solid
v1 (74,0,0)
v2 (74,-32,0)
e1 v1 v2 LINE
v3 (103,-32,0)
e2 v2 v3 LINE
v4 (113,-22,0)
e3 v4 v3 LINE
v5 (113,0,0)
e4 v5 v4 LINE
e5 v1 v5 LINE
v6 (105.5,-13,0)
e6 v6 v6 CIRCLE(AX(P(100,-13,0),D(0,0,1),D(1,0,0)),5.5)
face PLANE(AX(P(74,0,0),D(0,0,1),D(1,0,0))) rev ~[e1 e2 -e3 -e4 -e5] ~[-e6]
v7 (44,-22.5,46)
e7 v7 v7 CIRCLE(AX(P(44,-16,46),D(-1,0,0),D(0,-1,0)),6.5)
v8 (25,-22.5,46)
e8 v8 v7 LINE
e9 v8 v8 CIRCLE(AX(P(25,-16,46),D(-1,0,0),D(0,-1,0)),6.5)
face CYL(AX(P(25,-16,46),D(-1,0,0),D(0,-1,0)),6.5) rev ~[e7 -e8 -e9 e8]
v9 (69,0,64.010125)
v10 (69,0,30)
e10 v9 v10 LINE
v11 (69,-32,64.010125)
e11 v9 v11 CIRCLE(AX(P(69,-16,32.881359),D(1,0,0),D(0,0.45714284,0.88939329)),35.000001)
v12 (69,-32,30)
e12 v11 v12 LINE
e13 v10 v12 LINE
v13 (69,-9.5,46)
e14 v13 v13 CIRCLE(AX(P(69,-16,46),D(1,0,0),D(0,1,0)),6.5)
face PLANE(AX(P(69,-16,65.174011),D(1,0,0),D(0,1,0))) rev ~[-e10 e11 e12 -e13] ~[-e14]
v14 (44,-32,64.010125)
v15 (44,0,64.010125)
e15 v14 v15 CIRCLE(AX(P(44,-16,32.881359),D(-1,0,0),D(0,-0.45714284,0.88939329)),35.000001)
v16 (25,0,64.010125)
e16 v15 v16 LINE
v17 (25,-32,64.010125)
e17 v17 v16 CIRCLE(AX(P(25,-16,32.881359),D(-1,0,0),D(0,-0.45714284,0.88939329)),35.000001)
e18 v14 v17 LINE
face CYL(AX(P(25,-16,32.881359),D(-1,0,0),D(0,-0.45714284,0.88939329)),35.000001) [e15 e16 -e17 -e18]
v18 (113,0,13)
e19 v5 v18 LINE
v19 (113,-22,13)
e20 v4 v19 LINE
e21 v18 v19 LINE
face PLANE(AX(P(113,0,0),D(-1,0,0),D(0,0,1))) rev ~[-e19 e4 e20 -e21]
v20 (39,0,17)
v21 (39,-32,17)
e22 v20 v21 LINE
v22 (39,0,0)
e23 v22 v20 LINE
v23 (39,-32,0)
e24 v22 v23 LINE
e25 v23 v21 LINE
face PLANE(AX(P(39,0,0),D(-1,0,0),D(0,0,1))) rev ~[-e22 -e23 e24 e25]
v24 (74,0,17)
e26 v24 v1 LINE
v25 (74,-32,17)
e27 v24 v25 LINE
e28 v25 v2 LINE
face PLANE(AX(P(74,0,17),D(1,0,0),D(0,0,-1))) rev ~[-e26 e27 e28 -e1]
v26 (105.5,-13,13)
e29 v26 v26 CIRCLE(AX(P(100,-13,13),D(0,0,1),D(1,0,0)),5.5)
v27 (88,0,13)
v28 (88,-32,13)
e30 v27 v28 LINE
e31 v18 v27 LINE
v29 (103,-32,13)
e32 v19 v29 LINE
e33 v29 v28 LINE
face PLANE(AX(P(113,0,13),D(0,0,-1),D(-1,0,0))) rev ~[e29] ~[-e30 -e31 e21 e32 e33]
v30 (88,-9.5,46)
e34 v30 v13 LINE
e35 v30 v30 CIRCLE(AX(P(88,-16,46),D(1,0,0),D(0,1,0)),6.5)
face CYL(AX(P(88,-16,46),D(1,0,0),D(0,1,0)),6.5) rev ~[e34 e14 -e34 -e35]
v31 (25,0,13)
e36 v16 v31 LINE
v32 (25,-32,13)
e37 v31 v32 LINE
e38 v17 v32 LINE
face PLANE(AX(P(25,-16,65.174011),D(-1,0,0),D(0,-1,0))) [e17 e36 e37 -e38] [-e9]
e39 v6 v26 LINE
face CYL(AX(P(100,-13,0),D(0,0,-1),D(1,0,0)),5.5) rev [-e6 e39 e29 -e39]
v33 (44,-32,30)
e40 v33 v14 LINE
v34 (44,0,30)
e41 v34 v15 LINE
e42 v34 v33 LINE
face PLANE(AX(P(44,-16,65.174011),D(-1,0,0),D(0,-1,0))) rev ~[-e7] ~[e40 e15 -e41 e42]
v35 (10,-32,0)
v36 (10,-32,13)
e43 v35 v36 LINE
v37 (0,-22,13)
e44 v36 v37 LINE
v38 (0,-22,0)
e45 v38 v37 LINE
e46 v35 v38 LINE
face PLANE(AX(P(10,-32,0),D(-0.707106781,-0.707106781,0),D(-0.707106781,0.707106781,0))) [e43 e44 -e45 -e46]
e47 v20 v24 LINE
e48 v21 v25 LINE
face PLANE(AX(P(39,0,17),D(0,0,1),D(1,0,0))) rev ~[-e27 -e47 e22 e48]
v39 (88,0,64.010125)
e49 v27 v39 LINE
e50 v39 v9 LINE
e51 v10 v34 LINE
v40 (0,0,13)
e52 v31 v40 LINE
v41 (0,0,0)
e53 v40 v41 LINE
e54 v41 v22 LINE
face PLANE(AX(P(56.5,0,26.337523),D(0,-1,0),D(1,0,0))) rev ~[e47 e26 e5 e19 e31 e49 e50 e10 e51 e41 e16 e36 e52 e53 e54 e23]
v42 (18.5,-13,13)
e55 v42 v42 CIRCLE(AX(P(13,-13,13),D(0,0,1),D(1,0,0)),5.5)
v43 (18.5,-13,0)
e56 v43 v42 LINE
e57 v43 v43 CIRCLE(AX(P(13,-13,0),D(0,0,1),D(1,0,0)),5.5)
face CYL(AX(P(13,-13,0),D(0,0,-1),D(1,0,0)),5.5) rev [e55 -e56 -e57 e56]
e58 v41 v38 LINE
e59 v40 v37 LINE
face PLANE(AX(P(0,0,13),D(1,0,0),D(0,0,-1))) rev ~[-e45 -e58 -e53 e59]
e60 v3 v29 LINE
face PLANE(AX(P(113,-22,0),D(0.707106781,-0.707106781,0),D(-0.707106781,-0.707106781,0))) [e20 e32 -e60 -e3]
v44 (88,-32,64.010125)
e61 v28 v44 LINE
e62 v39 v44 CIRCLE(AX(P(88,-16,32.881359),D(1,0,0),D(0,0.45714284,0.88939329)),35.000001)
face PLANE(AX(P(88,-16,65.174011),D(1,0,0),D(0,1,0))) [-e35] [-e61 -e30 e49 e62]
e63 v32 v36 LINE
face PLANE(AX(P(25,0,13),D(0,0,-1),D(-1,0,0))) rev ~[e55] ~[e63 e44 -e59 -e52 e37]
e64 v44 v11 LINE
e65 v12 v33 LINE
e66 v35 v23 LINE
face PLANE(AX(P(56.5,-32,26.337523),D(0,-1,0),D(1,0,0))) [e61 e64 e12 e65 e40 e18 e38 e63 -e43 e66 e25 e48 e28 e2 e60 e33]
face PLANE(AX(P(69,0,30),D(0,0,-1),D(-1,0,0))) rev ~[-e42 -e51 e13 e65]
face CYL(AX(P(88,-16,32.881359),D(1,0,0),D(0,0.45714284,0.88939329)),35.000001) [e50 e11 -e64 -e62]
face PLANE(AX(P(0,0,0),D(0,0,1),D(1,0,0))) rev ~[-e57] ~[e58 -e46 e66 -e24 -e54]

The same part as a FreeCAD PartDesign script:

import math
import FreeCAD as App
import Part
import Sketcher

V = App.Vector


def add_polygon(sketch, points):
    """Adds a closed chain of lines whose ends are joined by coincident constraints."""
    first, n = sketch.GeometryCount, len(points)
    for a, b in zip(points, points[1:] + points[:1]):
        sketch.addGeometry(Part.LineSegment(App.Vector(*a, 0), App.Vector(*b, 0)), False)
    for i in range(n):
        sketch.addConstraint(Sketcher.Constraint("Coincident", first + i, 2, first + (i + 1) % n, 1))

doc = App.newDocument("Part")
params = doc.addObject("Spreadsheet::Sheet", "Params")
for row, (alias, value) in enumerate([
    ("sketch1_width", "39 mm"),
    ("sketch1_width2", "35 mm"),
    ("sketch1_width3", "25 mm"),
    ("sketch1_height", "13 mm"),
    ("sketch1_height2", "17 mm"),
    ("pad1_length", "32 mm"),
    ("sketch2_diameter", "13 mm"),
    ("pocket1_length", "19 mm"),
    ("sketch3_diameter", "13 mm"),
    ("sketch4_width", "10 mm"),
    ("sketch5_diameter", "11 mm"),
    ("sketch6_radius", "35.000001 mm"),
    ("sketch6_width", "32 mm"),
    ("pad2_length", "19 mm"),
    ("sketch7_radius", "35.000001 mm"),
    ("sketch7_width", "32 mm"),
    ("pad3_length", "19 mm"),
], start=1):
    params.set(f"A{row}", alias)
    params.set(f"B{row}", "=" + value)
    params.setAlias(f"B{row}", alias)

body = doc.addObject("PartDesign::Body", "Body")

# Sketch on XZ plane
sketch1 = doc.addObject("Sketcher::SketchObject", "Sketch")
body.addObject(sketch1)
sketch1.AttachmentSupport = (doc.XZ_Plane, [""])
sketch1.MapMode = "FlatFace"
add_polygon(sketch1, [(0, 13), (0, 0), (39, 0), (39, 17), (74, 17), (74, 0), (113, 0), (113, 13), (88, 13), (88, 64.010125), (69, 64.010125), (69, 30), (44, 30), (44, 64.010125), (25, 64.010125), (25, 13)])  # lines 0-15
sketch1.addConstraint([
    Sketcher.Constraint("Vertical", 0),
    Sketcher.Constraint("Horizontal", 1),
    Sketcher.Constraint("Vertical", 2),
    Sketcher.Constraint("Horizontal", 3),
    Sketcher.Constraint("Vertical", 4),
    Sketcher.Constraint("Horizontal", 5),
    Sketcher.Constraint("Vertical", 6),
    Sketcher.Constraint("Horizontal", 7),
    Sketcher.Constraint("Vertical", 8),
    Sketcher.Constraint("Horizontal", 9),
    Sketcher.Constraint("Vertical", 10),
    Sketcher.Constraint("Horizontal", 11),
    Sketcher.Constraint("Vertical", 12),
    Sketcher.Constraint("Horizontal", 13),
    Sketcher.Constraint("Vertical", 14),
    Sketcher.Constraint("Horizontal", 15),
    Sketcher.Constraint("Coincident", 0, 2, -1, 1),
    Sketcher.Constraint("PointOnObject", 4, 2, -1),
    Sketcher.Constraint("Horizontal", 9, 2, 12, 2),
    Sketcher.Constraint("Horizontal", 7, 2, 14, 2),
    Sketcher.Constraint("Equal", 1, 5),
    Sketcher.Constraint("Equal", 7, 11),
    Sketcher.Constraint("Equal", 9, 13),
    Sketcher.Constraint("Equal", 11, 15),
    Sketcher.Constraint("DistanceX", 1, 1, 1, 2, 39.0),
    Sketcher.Constraint("DistanceX", 3, 1, 3, 2, 35.0),
    Sketcher.Constraint("DistanceX", 7, 2, 7, 1, 25.0),
    Sketcher.Constraint("DistanceY", 0, 2, 0, 1, 13.0),
    Sketcher.Constraint("DistanceY", 2, 1, 2, 2, 17.0),
    Sketcher.Constraint("DistanceY", -1, 1, 10, 2, 30.0),
    Sketcher.Constraint("DistanceY", 8, 1, 8, 2, 51.010125),
])
sketch1.setExpression("Constraints[40]", "Params.sketch1_width")
sketch1.setExpression("Constraints[41]", "Params.sketch1_width2")
sketch1.setExpression("Constraints[42]", "Params.sketch1_width3")
sketch1.setExpression("Constraints[43]", "Params.sketch1_height")
sketch1.setExpression("Constraints[44]", "Params.sketch1_height2")
pad1 = doc.addObject("PartDesign::Pad", "Pad")
body.addObject(pad1)
pad1.Profile = sketch1
pad1.setExpression("Length", "Params.pad1_length")

# Sketch on YZ plane
sketch2 = doc.addObject("Sketcher::SketchObject", "Sketch001")
body.addObject(sketch2)
sketch2.AttachmentSupport = (doc.YZ_Plane, [""])
sketch2.MapMode = "FlatFace"
sketch2.AttachmentOffset = App.Placement(V(0, 0, 88), App.Rotation())
sketch2.addGeometry(Part.Circle(V(-16, 46, 0), V(0, 0, 1), 6.5), False)
sketch2.addConstraint([
    Sketcher.Constraint("Diameter", 0, 13.0),
    Sketcher.Constraint("DistanceX", 0, 3, -1, 1, 16.0),
    Sketcher.Constraint("DistanceY", -1, 1, 0, 3, 46.0),
])
sketch2.setExpression("Constraints[0]", "Params.sketch2_diameter")
pocket1 = doc.addObject("PartDesign::Pocket", "Pocket")
body.addObject(pocket1)
pocket1.Profile = sketch2
pocket1.setExpression("Length", "Params.pocket1_length")

# Sketch on YZ plane
sketch3 = doc.addObject("Sketcher::SketchObject", "Sketch002")
body.addObject(sketch3)
sketch3.AttachmentSupport = (doc.YZ_Plane, [""])
sketch3.MapMode = "FlatFace"
sketch3.AttachmentOffset = App.Placement(V(0, 0, 25), App.Rotation())
sketch3.addGeometry(Part.Circle(V(-16, 46, 0), V(0, 0, 1), 6.5), False)
sketch3.addConstraint([
    Sketcher.Constraint("Diameter", 0, 13.0),
    Sketcher.Constraint("DistanceX", 0, 3, -1, 1, 16.0),
    Sketcher.Constraint("DistanceY", -1, 1, 0, 3, 46.0),
])
sketch3.setExpression("Constraints[0]", "Params.sketch3_diameter")
pocket2 = doc.addObject("PartDesign::Pocket", "Pocket001")
body.addObject(pocket2)
pocket2.Profile = sketch3
pocket2.Type = "ThroughAll"
pocket2.Reversed = True

# Sketch on XY plane
sketch4 = doc.addObject("Sketcher::SketchObject", "Sketch003")
body.addObject(sketch4)
sketch4.AttachmentSupport = (doc.XY_Plane, [""])
sketch4.MapMode = "FlatFace"
add_polygon(sketch4, [(0, -22), (0, -32), (10, -32)])  # lines 0-2
add_polygon(sketch4, [(113, -22), (103, -32), (113, -32)])  # lines 3-5
sketch4.addConstraint([
    Sketcher.Constraint("Vertical", 0),
    Sketcher.Constraint("Horizontal", 1),
    Sketcher.Constraint("Horizontal", 4),
    Sketcher.Constraint("Vertical", 5),
    Sketcher.Constraint("PointOnObject", 0, 2, -2),
    Sketcher.Constraint("Perpendicular", 2, 3),
    Sketcher.Constraint("Horizontal", 1, 2, 3, 2),
    Sketcher.Constraint("Horizontal", 2, 2, 5, 2),
    Sketcher.Constraint("Equal", 1, 4),
    Sketcher.Constraint("DistanceX", 1, 1, 1, 2, 10.0),
    Sketcher.Constraint("DistanceY", 0, 2, -1, 1, 32.0),
    Sketcher.Constraint("DistanceX", -1, 1, 3, 2, 103.0),
])
sketch4.setExpression("Constraints[15]", "Params.sketch4_width")
pocket3 = doc.addObject("PartDesign::Pocket", "Pocket002")
body.addObject(pocket3)
pocket3.Profile = sketch4
pocket3.Type = "ThroughAll"
pocket3.Reversed = True

# Sketch on XY plane
sketch5 = doc.addObject("Sketcher::SketchObject", "Sketch004")
body.addObject(sketch5)
sketch5.AttachmentSupport = (doc.XY_Plane, [""])
sketch5.MapMode = "FlatFace"
sketch5.addGeometry([
    Part.Circle(V(13, -13, 0), V(0, 0, 1), 5.5),
    Part.Circle(V(100, -13, 0), V(0, 0, 1), 5.5),
], False)
sketch5.addConstraint([
    Sketcher.Constraint("Equal", 0, 1),
    Sketcher.Constraint("Horizontal", 0, 3, 1, 3),
    Sketcher.Constraint("Diameter", 0, 11.0),
    Sketcher.Constraint("DistanceX", -1, 1, 0, 3, 13.0),
    Sketcher.Constraint("DistanceY", 0, 3, -1, 1, 13.0),
    Sketcher.Constraint("DistanceX", -1, 1, 1, 3, 100.0),
])
sketch5.setExpression("Constraints[2]", "Params.sketch5_diameter")
pocket4 = doc.addObject("PartDesign::Pocket", "Pocket003")
body.addObject(pocket4)
pocket4.Profile = sketch5
pocket4.Type = "ThroughAll"
pocket4.Reversed = True

# Sketch on YZ plane
sketch6 = doc.addObject("Sketcher::SketchObject", "Sketch005")
body.addObject(sketch6)
sketch6.AttachmentSupport = (doc.YZ_Plane, [""])
sketch6.MapMode = "FlatFace"
sketch6.AttachmentOffset = App.Placement(V(0, 0, 88), App.Rotation())
sketch6.addGeometry([
    Part.LineSegment(V(-32, 64.010125, 0), V(0, 64.010125, 0)),
    Part.ArcOfCircle(Part.Circle(V(-16, 32.881359, 0), V(0, 0, 1), 35.000001), math.radians(62.797107), math.radians(117.202893)),
], False)
sketch6.addConstraint([
    Sketcher.Constraint("Coincident", 0, 1, 1, 2),
    Sketcher.Constraint("Coincident", 1, 1, 0, 2),
    Sketcher.Constraint("Horizontal", 0),
    Sketcher.Constraint("PointOnObject", 1, 1, -2),
    Sketcher.Constraint("Radius", 1, 35.000001),
    Sketcher.Constraint("DistanceX", 0, 1, 0, 2, 32.0),
    Sketcher.Constraint("DistanceY", -1, 1, 1, 3, 32.881359),
])
sketch6.setExpression("Constraints[4]", "Params.sketch6_radius")
sketch6.setExpression("Constraints[5]", "Params.sketch6_width")
pad2 = doc.addObject("PartDesign::Pad", "Pad001")
body.addObject(pad2)
pad2.Profile = sketch6
pad2.setExpression("Length", "Params.pad2_length")
pad2.Reversed = True

# Sketch on YZ plane
sketch7 = doc.addObject("Sketcher::SketchObject", "Sketch006")
body.addObject(sketch7)
sketch7.AttachmentSupport = (doc.YZ_Plane, [""])
sketch7.MapMode = "FlatFace"
sketch7.AttachmentOffset = App.Placement(V(0, 0, 25), App.Rotation())
sketch7.addGeometry([
    Part.LineSegment(V(0, 64.010125, 0), V(-32, 64.010125, 0)),
    Part.ArcOfCircle(Part.Circle(V(-16, 32.881359, 0), V(0, 0, 1), 35.000001), math.radians(62.797107), math.radians(117.202893)),
], False)
sketch7.addConstraint([
    Sketcher.Constraint("Coincident", 0, 1, 1, 1),
    Sketcher.Constraint("Coincident", 1, 2, 0, 2),
    Sketcher.Constraint("Horizontal", 0),
    Sketcher.Constraint("PointOnObject", 0, 1, -2),
    Sketcher.Constraint("Radius", 1, 35.000001),
    Sketcher.Constraint("DistanceX", 0, 2, 0, 1, 32.0),
    Sketcher.Constraint("DistanceY", -1, 1, 1, 3, 32.881359),
])
sketch7.setExpression("Constraints[4]", "Params.sketch7_radius")
sketch7.setExpression("Constraints[5]", "Params.sketch7_width")
pad3 = doc.addObject("PartDesign::Pad", "Pad002")
body.addObject(pad3)
pad3.Profile = sketch7
pad3.setExpression("Length", "Params.pad3_length")

doc.recompute()
